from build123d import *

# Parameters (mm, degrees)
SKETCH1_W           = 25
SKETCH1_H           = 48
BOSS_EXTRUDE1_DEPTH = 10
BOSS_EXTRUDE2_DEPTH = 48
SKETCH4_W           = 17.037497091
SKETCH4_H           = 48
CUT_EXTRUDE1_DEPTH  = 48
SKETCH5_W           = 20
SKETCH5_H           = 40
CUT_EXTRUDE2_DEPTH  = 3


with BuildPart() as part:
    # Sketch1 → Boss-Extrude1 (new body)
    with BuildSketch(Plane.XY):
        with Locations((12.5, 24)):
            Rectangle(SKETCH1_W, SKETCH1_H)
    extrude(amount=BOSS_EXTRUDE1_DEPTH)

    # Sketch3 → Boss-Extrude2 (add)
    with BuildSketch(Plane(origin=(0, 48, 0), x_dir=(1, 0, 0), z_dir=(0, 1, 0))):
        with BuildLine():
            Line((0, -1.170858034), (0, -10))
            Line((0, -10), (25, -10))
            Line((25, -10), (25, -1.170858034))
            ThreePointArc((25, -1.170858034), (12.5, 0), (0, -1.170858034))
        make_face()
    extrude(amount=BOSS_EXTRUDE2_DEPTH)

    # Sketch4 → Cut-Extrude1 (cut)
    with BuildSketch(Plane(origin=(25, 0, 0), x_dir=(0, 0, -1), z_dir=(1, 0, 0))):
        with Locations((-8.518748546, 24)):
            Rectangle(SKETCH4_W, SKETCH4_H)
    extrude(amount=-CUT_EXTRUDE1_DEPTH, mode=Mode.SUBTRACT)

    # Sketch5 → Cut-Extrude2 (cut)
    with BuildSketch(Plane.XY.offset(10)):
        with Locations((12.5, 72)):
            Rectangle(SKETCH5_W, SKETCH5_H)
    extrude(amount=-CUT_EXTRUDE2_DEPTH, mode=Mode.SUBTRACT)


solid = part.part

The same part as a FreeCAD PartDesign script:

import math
import FreeCAD as App
import Part
import Sketcher

V = App.Vector


def add_polygon(sketch, points):
    """Adds a closed chain of lines whose ends are joined by coincident constraints."""
    first, n = sketch.GeometryCount, len(points)
    for a, b in zip(points, points[1:] + points[:1]):
        sketch.addGeometry(Part.LineSegment(App.Vector(*a, 0), App.Vector(*b, 0)), False)
    for i in range(n):
        sketch.addConstraint(Sketcher.Constraint("Coincident", first + i, 2, first + (i + 1) % n, 1))

doc = App.newDocument("Part")
params = doc.addObject("Spreadsheet::Sheet", "Params")
for row, (alias, value) in enumerate([
    ("sketch1_width", "25 mm"),
    ("sketch1_height", "48 mm"),
    ("pad1_length", "10 mm"),
    ("sketch2_width", "25 mm"),
    ("sketch2_radius", "67.31 mm"),
    ("pad2_length", "48 mm"),
    ("sketch3_width", "48 mm"),
    ("pocket1_length", "48 mm"),
    ("sketch4_width", "20 mm"),
    ("sketch4_height", "40 mm"),
    ("pocket2_length", "3 mm"),
], start=1):
    params.set(f"A{row}", alias)
    params.set(f"B{row}", "=" + value)
    params.setAlias(f"B{row}", alias)

body = doc.addObject("PartDesign::Body", "Body")

# Sketch on XY plane
sketch1 = body.newObject("Sketcher::SketchObject", "Sketch")
sketch1.AttachmentSupport = (doc.getObject("XY_Plane"), [""])
sketch1.MapMode = "FlatFace"
add_polygon(sketch1, [(0, 48), (0, 0), (25, 0), (25, 48)])  # lines 0-3
sketch1.addConstraint([
    Sketcher.Constraint("Vertical", 0),
    Sketcher.Constraint("Horizontal", 1),
    Sketcher.Constraint("Vertical", 2),
    Sketcher.Constraint("Horizontal", 3),
    Sketcher.Constraint("Coincident", 0, 2, -1, 1),
    Sketcher.Constraint("DistanceX", 1, 1, 1, 2, 25.0),
    Sketcher.Constraint("DistanceY", 0, 2, 0, 1, 48.0),
])
sketch1.setExpression("Constraints[9]", "Params.sketch1_width")
sketch1.setExpression("Constraints[10]", "Params.sketch1_height")
pad1 = body.newObject("PartDesign::Pad", "Pad")
pad1.Profile = sketch1
pad1.setExpression("Length", "Params.pad1_length")

# Sketch on XZ plane
sketch2 = body.newObject("Sketcher::SketchObject", "Sketch001")
sketch2.AttachmentSupport = (doc.getObject("XZ_Plane"), [""])
sketch2.MapMode = "FlatFace"
sketch2.AttachmentOffset = App.Placement(V(0, 0, -48), App.Rotation())
sketch2.addGeometry([
    Part.LineSegment(V(0, 1, 0), V(0, 10, 0)),
    Part.LineSegment(V(0, 10, 0), V(25, 10, 0)),
    Part.LineSegment(V(25, 10, 0), V(25, 1, 0)),
    Part.ArcOfCircle(Part.Circle(V(12, 67, 0), V(0, 0, 1), 67), math.radians(-101), math.radians(-79)),
], False)
sketch2.addConstraint([
    Sketcher.Constraint("Coincident", 0, 2, 1, 1),
    Sketcher.Constraint("Coincident", 1, 2, 2, 1),
    Sketcher.Constraint("Coincident", 2, 2, 3, 2),
    Sketcher.Constraint("Coincident", 3, 1, 0, 1),
    Sketcher.Constraint("Vertical", 0),
    Sketcher.Constraint("Horizontal", 1),
    Sketcher.Constraint("Vertical", 2),
    Sketcher.Constraint("PointOnObject", 0, 2, -2),
    Sketcher.Constraint("Horizontal", 2, 2, 3, 1),
    Sketcher.Constraint("DistanceX", 1, 1, 1, 2, 25.0),
    Sketcher.Constraint("Radius", 3, 67.31),
    Sketcher.Constraint("DistanceY", -1, 1, 0, 2, 10.0),
    Sketcher.Constraint("DistanceY", -1, 1, 3, 3, 67.31),
])
sketch2.setExpression("Constraints[9]", "Params.sketch2_width")
sketch2.setExpression("Constraints[10]", "Params.sketch2_radius")
pad2 = body.newObject("PartDesign::Pad", "Pad001")
pad2.Profile = sketch2
pad2.setExpression("Length", "Params.pad2_length")
pad2.Reversed = True

# Sketch on YZ plane
sketch3 = body.newObject("Sketcher::SketchObject", "Sketch002")
sketch3.AttachmentSupport = (doc.getObject("YZ_Plane"), [""])
sketch3.MapMode = "FlatFace"
sketch3.AttachmentOffset = App.Placement(V(0, 0, 25), App.Rotation())
add_polygon(sketch3, [(48, 17), (0, 17), (0, 0), (48, 0)])  # lines 0-3
sketch3.addConstraint([
    Sketcher.Constraint("Horizontal", 0),
    Sketcher.Constraint("Vertical", 1),
    Sketcher.Constraint("Horizontal", 2),
    Sketcher.Constraint("Vertical", 3),
    Sketcher.Constraint("Coincident", 1, 2, -1, 1),
    Sketcher.Constraint("DistanceX", 0, 2, 0, 1, 48.0),
    Sketcher.Constraint("DistanceY", 1, 2, 1, 1, 17.037497),
])
sketch3.setExpression("Constraints[9]", "Params.sketch3_width")
pocket1 = body.newObject("PartDesign::Pocket", "Pocket")
pocket1.Profile = sketch3
pocket1.setExpression("Length", "Params.pocket1_length")

# Sketch on XY plane
sketch4 = body.newObject("Sketcher::SketchObject", "Sketch003")
sketch4.AttachmentSupport = (doc.getObject("XY_Plane"), [""])
sketch4.MapMode = "FlatFace"
sketch4.AttachmentOffset = App.Placement(V(0, 0, 10), App.Rotation())
add_polygon(sketch4, [(2, 92), (2, 52), (22, 52), (22, 92)])  # lines 0-3
sketch4.addConstraint([
    Sketcher.Constraint("Vertical", 0),
    Sketcher.Constraint("Horizontal", 1),
    Sketcher.Constraint("Vertical", 2),
    Sketcher.Constraint("Horizontal", 3),
    Sketcher.Constraint("DistanceX", 1, 1, 1, 2, 20.0),
    Sketcher.Constraint("DistanceY", 0, 2, 0, 1, 40.0),
    Sketcher.Constraint("DistanceY", -1, 1, 0, 2, 52.0),
    Sketcher.Constraint("DistanceX", -1, 1, 0, 2, 2.5),
])
sketch4.setExpression("Constraints[8]", "Params.sketch4_width")
sketch4.setExpression("Constraints[9]", "Params.sketch4_height")
pocket2 = body.newObject("PartDesign::Pocket", "Pocket001")
pocket2.Profile = sketch4
pocket2.setExpression("Length", "Params.pocket2_length")

doc.recompute()
